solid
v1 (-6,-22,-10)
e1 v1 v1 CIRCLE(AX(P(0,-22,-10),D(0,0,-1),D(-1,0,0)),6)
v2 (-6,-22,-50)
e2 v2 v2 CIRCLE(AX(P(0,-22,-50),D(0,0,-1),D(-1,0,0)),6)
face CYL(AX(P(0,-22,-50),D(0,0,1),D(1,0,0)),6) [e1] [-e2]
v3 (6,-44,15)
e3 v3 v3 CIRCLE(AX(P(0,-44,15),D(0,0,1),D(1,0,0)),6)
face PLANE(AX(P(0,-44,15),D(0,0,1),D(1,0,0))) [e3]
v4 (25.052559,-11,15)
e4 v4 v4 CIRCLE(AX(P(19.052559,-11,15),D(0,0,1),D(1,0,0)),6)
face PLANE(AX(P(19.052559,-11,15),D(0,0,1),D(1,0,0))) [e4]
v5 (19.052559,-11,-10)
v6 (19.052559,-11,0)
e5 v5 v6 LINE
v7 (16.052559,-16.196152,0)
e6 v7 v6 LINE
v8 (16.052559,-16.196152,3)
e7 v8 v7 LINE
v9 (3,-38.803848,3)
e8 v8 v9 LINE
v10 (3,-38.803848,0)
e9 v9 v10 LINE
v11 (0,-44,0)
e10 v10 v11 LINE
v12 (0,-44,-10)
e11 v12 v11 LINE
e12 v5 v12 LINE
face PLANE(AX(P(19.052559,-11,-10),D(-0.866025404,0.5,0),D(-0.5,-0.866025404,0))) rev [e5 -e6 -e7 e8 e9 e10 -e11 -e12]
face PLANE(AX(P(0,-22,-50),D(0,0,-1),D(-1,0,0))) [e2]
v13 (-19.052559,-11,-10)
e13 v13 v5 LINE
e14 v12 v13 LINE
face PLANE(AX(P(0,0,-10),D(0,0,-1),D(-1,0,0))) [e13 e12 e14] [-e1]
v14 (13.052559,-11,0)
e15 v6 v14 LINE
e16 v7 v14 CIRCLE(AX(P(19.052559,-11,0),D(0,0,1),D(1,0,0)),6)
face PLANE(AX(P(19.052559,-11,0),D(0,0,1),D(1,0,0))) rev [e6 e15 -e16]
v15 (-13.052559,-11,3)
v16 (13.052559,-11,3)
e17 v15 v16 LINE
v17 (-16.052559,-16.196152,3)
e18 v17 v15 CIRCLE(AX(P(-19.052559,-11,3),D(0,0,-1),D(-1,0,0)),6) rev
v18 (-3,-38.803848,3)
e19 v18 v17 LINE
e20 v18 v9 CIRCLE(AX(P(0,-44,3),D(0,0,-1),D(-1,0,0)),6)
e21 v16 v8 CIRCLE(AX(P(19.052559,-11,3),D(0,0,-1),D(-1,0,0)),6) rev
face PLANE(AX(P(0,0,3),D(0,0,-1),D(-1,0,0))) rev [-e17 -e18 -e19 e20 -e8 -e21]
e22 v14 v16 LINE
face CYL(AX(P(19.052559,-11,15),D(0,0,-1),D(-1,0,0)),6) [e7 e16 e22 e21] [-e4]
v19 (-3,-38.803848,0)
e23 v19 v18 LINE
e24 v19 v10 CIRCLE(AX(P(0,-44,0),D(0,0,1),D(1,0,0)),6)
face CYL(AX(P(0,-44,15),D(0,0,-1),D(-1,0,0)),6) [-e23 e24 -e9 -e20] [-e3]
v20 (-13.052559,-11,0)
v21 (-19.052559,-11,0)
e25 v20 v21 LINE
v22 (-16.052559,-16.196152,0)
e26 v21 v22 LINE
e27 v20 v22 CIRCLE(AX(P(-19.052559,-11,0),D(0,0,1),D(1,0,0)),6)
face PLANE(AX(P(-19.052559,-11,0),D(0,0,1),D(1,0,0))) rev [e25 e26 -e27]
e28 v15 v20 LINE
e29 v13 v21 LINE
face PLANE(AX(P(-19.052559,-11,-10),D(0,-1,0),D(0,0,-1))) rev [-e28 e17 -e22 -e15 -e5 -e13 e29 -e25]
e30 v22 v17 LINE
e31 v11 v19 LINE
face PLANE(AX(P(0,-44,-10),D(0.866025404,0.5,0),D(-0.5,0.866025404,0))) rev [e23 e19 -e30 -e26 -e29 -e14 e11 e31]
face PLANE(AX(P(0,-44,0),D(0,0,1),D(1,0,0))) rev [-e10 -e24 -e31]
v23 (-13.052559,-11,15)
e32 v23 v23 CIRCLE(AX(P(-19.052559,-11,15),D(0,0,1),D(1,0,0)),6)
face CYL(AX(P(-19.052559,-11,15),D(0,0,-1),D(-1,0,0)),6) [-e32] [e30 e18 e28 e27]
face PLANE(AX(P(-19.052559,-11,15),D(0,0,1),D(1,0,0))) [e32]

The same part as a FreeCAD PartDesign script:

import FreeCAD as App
import Part
import Sketcher
Q = App.Units.Quantity

doc = App.newDocument("Part")
body = doc.addObject("PartDesign::Body", "Body")

# Sketch on XY plane
sketch1 = body.newObject("Sketcher::SketchObject", "Sketch")
sketch1.AttachmentSupport = (doc.getObject("XY_Plane"), [""])
sketch1.MapMode = "FlatFace"
sketch1.addGeometry(Part.Circle(App.Vector(0, -44, 0), App.Vector(0, 0, 1), 6), False)
sketch1.addConstraint(Sketcher.Constraint("PointOnObject", 0, 3, -2))
sketch1.addConstraint(Sketcher.Constraint("Diameter", 0, 12.0))
sketch1.addConstraint(Sketcher.Constraint("DistanceY", 0, 3, -1, 1, 44.0))
pad1 = body.newObject("PartDesign::Pad", "Pad")
pad1.Profile = sketch1
pad1.Length = 15
body2 = doc.addObject("PartDesign::Body", "Body001")

# Sketch on XY plane
sketch2 = body2.newObject("Sketcher::SketchObject", "Sketch001")
sketch2.AttachmentSupport = (doc.getObject("XY_Plane001"), [""])
sketch2.MapMode = "FlatFace"
sketch2.addGeometry(Part.Circle(App.Vector(19, -11, 0), App.Vector(0, 0, 1), 6), False)
sketch2.addConstraint(Sketcher.Constraint("Diameter", 0, 12.0))
sketch2.addConstraint(Sketcher.Constraint("DistanceY", 0, 3, -1, 1, 11.0))
sketch2.addConstraint(Sketcher.Constraint("DistanceX", -1, 1, 0, 3, 19.052559))
pad2 = body2.newObject("PartDesign::Pad", "Pad001")
pad2.Profile = sketch2
pad2.Length = 15
body3 = doc.addObject("PartDesign::Body", "Body002")

# Sketch on XY plane
sketch3 = body3.newObject("Sketcher::SketchObject", "Sketch002")
sketch3.AttachmentSupport = (doc.getObject("XY_Plane002"), [""])
sketch3.MapMode = "FlatFace"
sketch3.addGeometry(Part.Circle(App.Vector(-19, -11, 0), App.Vector(0, 0, 1), 6), False)
sketch3.addConstraint(Sketcher.Constraint("Diameter", 0, 12.0))
sketch3.addConstraint(Sketcher.Constraint("DistanceY", 0, 3, -1, 1, 11.0))
sketch3.addConstraint(Sketcher.Constraint("DistanceX", 0, 3, -1, 1, 19.052559))
pad3 = body3.newObject("PartDesign::Pad", "Pad002")
pad3.Profile = sketch3
pad3.Length = 15
body.AllowCompound = True
doc.recompute()

boolean = body.newObject("PartDesign::Boolean", "Boolean")
boolean.Type = "Fuse"
boolean.addObjects([body2])
doc.recompute()

boolean2 = body.newObject("PartDesign::Boolean", "Boolean001")
boolean2.Type = "Fuse"
boolean2.addObjects([body3])

# Sketch on XY plane
sketch4 = body.newObject("Sketcher::SketchObject", "Sketch003")
sketch4.AttachmentSupport = (doc.getObject("XY_Plane"), [""])
sketch4.MapMode = "FlatFace"
sketch4.AttachmentOffset = App.Placement(App.Vector(0, 0, 3), App.Rotation())
sketch4.addGeometry(Part.LineSegment(App.Vector(19, -11, 0), App.Vector(0, -44, 0)), False)
sketch4.addGeometry(Part.LineSegment(App.Vector(0, -44, 0), App.Vector(-19, -11, 0)), False)
sketch4.addGeometry(Part.LineSegment(App.Vector(-19, -11, 0), App.Vector(19, -11, 0)), False)
sketch4.addConstraint(Sketcher.Constraint("Coincident", 0, 2, 1, 1))
sketch4.addConstraint(Sketcher.Constraint("Coincident", 1, 2, 2, 1))
sketch4.addConstraint(Sketcher.Constraint("Coincident", 2, 2, 0, 1))
sketch4.addConstraint(Sketcher.Constraint("Horizontal", 2))
sketch4.addConstraint(Sketcher.Constraint("PointOnObject", 0, 2, -2))
sketch4.addConstraint(Sketcher.Constraint("Equal", 0, 1))
sketch4.addConstraint(Sketcher.Constraint("Angle", 0, Q("-120 deg")))
sketch4.addConstraint(Sketcher.Constraint("DistanceY", 0, 2, -1, 1, 44.0))
sketch4.addConstraint(Sketcher.Constraint("DistanceY", 1, 2, -1, 1, 11.0))
pad4 = body.newObject("PartDesign::Pad", "Pad003")
pad4.Profile = sketch4
pad4.Length = 13
pad4.Reversed = True

# Sketch on XY plane
sketch5 = body.newObject("Sketcher::SketchObject", "Sketch004")
sketch5.AttachmentSupport = (doc.getObject("XY_Plane"), [""])
sketch5.MapMode = "FlatFace"
sketch5.AttachmentOffset = App.Placement(App.Vector(0, 0, -10), App.Rotation())
sketch5.addGeometry(Part.Circle(App.Vector(0, -22, 0), App.Vector(0, 0, 1), 6), False)
sketch5.addConstraint(Sketcher.Constraint("PointOnObject", 0, 3, -2))
sketch5.addConstraint(Sketcher.Constraint("Diameter", 0, 12.0))
sketch5.addConstraint(Sketcher.Constraint("DistanceY", 0, 3, -1, 1, 22.0))
pad5 = body.newObject("PartDesign::Pad", "Pad004")
pad5.Profile = sketch5
pad5.Length = 40
pad5.Reversed = True

doc.recompute()
